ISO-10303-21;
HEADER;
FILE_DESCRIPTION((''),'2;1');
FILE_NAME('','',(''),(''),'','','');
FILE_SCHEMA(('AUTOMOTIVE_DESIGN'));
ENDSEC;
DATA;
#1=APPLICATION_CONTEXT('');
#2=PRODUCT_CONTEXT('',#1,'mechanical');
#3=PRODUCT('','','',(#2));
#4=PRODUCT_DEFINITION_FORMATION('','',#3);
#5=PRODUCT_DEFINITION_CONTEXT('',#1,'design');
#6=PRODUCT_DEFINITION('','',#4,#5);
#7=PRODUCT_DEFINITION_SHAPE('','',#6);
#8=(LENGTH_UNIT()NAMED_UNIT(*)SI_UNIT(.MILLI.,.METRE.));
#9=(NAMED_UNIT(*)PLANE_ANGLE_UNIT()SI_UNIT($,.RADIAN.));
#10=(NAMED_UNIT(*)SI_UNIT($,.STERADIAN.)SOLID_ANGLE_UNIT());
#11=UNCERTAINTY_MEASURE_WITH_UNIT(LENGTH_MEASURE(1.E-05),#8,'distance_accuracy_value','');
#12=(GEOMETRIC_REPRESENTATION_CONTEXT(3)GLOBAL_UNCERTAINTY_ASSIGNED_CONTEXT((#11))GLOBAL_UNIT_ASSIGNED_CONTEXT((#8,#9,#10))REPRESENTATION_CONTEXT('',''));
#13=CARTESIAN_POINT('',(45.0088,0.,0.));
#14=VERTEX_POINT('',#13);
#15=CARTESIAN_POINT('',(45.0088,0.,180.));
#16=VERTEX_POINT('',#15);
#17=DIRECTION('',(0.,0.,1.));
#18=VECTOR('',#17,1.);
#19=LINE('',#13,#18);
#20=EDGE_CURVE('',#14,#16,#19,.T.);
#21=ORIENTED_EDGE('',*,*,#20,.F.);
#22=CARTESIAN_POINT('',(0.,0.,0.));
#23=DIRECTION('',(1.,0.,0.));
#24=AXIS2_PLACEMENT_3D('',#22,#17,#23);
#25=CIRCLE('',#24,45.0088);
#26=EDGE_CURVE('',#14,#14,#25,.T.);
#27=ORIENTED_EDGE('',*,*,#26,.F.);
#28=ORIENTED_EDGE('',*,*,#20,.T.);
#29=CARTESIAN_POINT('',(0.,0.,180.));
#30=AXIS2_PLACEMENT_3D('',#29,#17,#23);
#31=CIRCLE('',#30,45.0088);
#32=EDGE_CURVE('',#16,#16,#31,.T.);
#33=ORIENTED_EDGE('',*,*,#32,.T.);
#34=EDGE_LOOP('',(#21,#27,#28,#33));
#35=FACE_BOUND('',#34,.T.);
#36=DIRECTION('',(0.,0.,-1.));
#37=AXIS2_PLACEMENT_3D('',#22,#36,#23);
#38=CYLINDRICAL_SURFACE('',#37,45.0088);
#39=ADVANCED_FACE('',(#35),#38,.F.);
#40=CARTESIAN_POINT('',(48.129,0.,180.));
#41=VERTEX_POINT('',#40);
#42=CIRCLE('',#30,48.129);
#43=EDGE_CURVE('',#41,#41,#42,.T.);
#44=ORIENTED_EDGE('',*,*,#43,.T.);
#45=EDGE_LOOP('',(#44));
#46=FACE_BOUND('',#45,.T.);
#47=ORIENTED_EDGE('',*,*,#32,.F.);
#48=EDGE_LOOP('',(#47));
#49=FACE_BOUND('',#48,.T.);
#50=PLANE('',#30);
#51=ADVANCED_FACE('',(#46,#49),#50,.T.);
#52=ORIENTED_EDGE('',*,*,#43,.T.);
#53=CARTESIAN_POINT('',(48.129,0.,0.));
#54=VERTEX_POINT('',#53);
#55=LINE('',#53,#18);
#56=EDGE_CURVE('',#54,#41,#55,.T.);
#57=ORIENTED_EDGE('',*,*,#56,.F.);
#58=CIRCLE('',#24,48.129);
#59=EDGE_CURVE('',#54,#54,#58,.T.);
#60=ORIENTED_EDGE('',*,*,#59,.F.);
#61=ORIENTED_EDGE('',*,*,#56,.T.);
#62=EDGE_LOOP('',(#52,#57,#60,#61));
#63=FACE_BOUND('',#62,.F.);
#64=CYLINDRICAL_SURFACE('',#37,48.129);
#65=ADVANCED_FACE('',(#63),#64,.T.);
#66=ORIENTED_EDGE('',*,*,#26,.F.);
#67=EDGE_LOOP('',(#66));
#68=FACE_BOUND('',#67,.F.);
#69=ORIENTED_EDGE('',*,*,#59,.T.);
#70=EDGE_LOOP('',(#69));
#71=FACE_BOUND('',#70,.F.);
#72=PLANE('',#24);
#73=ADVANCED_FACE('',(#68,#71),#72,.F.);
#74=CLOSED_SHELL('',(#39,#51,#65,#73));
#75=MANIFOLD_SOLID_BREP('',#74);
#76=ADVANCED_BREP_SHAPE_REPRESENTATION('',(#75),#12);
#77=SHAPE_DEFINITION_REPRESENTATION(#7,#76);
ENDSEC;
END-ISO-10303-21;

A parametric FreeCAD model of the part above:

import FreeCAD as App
import Part
import Sketcher
Q = App.Units.Quantity

doc = App.newDocument("Part")
body = doc.addObject("PartDesign::Body", "Body")

sketch1 = doc.addObject("Sketcher::SketchObject", "Sketch")
body.addObject(sketch1)
sketch1.AttachmentSupport = (doc.XY_Plane, [""])
sketch1.MapMode = "FlatFace"
sketch1.addGeometry(Part.Circle(App.Vector(0, 0, 0), App.Vector(0, 0, 1), 48), False)
sketch1.addGeometry(Part.Circle(App.Vector(0, 0, 0), App.Vector(0, 0, 1), 45), False)
sketch1.addConstraint(Sketcher.Constraint("Coincident", 0, 3, -1, 1))
sketch1.addConstraint(Sketcher.Constraint("Coincident", 1, 3, -1, 1))
sketch1.addConstraint(Sketcher.Constraint("Diameter", 0, Q("96.258 mm")))
sketch1.addConstraint(Sketcher.Constraint("Diameter", 1, Q("90.0176 mm")))
pad1 = doc.addObject("PartDesign::Pad", "Pad")
body.addObject(pad1)
pad1.Profile = sketch1
pad1.Length = 180

doc.recompute()
